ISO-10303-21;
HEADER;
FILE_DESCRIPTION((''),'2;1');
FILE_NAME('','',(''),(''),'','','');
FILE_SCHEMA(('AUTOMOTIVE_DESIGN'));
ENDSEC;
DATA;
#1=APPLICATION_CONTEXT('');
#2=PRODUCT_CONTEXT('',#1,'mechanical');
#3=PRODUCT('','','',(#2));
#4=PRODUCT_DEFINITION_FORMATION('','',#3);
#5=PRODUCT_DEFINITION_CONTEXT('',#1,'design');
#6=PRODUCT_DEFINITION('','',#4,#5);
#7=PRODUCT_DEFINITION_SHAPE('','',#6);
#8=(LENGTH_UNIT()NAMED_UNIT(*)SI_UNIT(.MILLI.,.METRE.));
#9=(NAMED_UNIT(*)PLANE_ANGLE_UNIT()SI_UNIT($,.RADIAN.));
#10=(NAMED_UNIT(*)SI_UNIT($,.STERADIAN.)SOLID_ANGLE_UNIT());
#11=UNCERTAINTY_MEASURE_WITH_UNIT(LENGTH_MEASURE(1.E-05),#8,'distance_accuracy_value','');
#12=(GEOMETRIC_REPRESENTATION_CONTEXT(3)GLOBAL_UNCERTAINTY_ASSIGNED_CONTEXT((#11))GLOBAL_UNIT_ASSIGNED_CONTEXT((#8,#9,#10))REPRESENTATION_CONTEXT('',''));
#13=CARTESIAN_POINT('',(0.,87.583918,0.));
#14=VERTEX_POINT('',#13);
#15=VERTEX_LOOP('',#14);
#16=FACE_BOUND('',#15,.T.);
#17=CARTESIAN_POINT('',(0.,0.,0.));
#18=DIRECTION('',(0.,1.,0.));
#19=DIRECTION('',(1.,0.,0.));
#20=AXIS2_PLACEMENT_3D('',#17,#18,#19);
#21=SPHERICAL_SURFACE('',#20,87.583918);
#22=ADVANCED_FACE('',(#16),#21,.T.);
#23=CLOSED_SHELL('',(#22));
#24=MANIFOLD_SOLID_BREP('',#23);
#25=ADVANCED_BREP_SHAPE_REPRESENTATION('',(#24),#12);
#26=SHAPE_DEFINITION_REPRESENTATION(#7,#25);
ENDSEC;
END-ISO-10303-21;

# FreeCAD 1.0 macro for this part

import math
import FreeCAD as App
import Part
import Sketcher

doc = App.newDocument("Part")
params = doc.addObject("Spreadsheet::Sheet", "Params")
for row, (alias, value) in enumerate([
    ("revolution_angle", "360 deg"),
], start=1):
    params.set(f"A{row}", alias)
    params.set(f"B{row}", "=" + value)
    params.setAlias(f"B{row}", alias)

body = doc.addObject("PartDesign::Body", "Body")

sketch1 = body.newObject("Sketcher::SketchObject", "Sketch")
sketch1.AttachmentSupport = (doc.getObject("XY_Plane"), [""])
sketch1.MapMode = "FlatFace"
sketch1.addGeometry(Part.LineSegment(App.Vector(0, -88, 0), App.Vector(0, 88, 0)), False)
sketch1.addGeometry(Part.ArcOfCircle(Part.Circle(App.Vector(0, 0, 0), App.Vector(0, 0, 1), 88), math.radians(90), math.radians(270)), False)
sketch1.addConstraint(Sketcher.Constraint("Coincident", 0, 1, 1, 2))
sketch1.addConstraint(Sketcher.Constraint("Coincident", 1, 1, 0, 2))
sketch1.addConstraint(Sketcher.Constraint("Vertical", 0))
sketch1.addConstraint(Sketcher.Constraint("Coincident", 1, 3, -1, 1))
sketch1.addConstraint(Sketcher.Constraint("PointOnObject", 0, 1, -2))
sketch1.addConstraint(Sketcher.Constraint("Radius", 1, 87.583918))
revolution = body.newObject("PartDesign::Revolution", "Revolution")
revolution.Profile = sketch1
revolution.ReferenceAxis = (sketch1, ["V_Axis"])
revolution.setExpression("Angle", "Params.revolution_angle")

doc.recompute()
